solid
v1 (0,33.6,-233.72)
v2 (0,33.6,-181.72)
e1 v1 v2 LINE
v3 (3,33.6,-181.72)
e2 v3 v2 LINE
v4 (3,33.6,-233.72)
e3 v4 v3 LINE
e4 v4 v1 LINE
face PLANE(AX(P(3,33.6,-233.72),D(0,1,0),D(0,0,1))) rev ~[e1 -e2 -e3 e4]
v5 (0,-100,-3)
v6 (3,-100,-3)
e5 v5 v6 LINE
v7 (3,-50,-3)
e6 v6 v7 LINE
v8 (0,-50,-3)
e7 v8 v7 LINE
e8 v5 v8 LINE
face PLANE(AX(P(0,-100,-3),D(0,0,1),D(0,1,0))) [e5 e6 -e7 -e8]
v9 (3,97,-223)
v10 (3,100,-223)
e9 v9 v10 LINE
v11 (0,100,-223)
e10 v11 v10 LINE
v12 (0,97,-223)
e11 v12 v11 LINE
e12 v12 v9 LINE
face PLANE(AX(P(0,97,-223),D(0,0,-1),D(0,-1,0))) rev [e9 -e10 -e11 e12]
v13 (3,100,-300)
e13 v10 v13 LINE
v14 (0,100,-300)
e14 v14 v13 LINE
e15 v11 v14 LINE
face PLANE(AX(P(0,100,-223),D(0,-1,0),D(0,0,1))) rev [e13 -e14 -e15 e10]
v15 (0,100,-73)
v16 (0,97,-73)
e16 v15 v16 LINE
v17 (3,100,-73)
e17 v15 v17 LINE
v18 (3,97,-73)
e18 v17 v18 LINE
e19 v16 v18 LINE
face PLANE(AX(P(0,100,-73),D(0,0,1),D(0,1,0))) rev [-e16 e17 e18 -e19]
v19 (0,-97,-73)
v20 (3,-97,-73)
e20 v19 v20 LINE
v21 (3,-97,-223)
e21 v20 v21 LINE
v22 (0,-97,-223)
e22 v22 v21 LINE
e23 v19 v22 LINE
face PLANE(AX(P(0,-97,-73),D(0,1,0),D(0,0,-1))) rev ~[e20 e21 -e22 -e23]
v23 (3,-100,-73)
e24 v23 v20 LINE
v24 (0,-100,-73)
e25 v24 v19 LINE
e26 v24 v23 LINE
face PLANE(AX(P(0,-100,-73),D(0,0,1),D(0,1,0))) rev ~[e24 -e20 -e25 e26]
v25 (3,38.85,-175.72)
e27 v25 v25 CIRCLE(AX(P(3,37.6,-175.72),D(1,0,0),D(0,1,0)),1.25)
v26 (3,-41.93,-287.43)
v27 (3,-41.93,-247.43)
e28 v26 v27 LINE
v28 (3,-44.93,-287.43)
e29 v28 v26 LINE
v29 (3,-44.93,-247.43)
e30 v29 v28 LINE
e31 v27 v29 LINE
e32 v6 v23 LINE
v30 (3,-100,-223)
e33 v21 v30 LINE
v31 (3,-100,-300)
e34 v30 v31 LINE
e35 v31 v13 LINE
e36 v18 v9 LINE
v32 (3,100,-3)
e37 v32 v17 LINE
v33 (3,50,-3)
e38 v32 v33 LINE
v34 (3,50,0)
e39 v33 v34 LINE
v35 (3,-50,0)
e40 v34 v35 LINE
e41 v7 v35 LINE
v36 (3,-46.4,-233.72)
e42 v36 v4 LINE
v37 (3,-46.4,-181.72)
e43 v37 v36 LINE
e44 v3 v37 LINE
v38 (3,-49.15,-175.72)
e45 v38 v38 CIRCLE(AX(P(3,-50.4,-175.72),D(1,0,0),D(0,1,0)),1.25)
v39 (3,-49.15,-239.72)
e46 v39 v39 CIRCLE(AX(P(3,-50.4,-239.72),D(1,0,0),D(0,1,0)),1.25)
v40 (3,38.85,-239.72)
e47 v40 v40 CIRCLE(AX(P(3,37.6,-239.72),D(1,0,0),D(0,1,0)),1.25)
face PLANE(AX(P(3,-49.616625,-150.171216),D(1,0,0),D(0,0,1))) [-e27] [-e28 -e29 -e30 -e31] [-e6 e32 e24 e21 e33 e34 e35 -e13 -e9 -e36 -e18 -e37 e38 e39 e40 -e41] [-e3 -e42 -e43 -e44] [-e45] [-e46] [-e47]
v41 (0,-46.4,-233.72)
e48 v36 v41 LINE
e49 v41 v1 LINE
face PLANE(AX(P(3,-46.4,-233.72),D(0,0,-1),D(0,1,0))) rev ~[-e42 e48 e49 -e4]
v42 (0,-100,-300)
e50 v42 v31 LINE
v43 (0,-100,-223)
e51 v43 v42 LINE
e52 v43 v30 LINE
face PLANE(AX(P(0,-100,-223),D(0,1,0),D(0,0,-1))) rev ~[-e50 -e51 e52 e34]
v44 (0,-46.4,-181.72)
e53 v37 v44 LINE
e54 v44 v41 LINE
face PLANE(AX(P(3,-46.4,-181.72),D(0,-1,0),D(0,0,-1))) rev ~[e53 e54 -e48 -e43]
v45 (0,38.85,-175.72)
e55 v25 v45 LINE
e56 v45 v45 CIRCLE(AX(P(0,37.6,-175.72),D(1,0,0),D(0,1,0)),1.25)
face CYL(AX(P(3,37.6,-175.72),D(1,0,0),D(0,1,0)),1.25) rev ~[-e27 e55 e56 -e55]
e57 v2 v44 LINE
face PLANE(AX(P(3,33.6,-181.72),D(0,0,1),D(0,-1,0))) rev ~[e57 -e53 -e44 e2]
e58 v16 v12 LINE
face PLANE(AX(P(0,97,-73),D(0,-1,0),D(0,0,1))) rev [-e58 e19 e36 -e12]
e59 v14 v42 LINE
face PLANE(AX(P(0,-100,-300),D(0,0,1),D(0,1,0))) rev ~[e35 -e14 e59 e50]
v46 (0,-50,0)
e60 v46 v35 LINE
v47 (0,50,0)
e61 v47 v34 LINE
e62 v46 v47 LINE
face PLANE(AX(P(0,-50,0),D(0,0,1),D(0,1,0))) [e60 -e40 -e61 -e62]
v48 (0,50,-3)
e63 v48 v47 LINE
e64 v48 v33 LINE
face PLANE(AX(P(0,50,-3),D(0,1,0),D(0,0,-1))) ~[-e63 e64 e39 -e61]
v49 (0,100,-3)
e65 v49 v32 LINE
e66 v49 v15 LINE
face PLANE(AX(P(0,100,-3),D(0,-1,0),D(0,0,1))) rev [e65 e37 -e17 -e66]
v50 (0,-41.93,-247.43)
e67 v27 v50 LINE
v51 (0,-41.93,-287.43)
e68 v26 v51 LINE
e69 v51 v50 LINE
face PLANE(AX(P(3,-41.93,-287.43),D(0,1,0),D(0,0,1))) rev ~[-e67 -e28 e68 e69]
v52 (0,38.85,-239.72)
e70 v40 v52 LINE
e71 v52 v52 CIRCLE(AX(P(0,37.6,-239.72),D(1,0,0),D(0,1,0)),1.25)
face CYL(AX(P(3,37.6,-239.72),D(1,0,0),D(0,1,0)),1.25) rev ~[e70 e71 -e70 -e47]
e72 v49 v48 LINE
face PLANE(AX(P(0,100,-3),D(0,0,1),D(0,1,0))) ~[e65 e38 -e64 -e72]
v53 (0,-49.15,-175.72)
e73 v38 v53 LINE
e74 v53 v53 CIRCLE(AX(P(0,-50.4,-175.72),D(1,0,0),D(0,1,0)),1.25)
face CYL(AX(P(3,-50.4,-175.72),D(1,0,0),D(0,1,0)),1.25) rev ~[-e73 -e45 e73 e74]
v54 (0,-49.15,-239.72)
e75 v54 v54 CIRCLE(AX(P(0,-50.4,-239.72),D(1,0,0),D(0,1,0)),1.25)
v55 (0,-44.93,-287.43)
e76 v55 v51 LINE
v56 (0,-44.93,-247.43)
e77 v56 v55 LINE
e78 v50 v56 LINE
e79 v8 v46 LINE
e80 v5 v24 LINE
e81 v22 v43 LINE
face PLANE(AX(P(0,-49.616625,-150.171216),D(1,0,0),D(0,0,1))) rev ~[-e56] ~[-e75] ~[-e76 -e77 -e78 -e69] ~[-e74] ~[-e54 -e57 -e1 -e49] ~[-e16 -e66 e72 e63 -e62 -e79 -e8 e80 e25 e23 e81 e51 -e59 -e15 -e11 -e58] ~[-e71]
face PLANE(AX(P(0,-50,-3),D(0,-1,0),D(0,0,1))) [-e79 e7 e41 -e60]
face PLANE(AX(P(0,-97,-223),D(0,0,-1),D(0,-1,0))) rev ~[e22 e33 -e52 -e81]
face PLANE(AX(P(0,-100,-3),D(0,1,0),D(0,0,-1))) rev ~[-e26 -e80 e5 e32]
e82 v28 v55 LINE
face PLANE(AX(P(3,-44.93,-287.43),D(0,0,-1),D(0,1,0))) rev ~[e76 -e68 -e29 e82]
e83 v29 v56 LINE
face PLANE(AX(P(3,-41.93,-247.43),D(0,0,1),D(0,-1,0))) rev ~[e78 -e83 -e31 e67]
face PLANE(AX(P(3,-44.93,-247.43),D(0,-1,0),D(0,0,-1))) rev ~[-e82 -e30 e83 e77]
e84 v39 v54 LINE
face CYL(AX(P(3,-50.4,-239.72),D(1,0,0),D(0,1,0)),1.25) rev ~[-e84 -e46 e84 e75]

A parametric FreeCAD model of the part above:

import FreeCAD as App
import Part
import Sketcher
from FreeCAD import Vector
Q = App.Units.Quantity

doc = App.newDocument("Part")
body = doc.addObject("PartDesign::Body", "Body")

# Sketch on YZ plane
sketch1 = body.newObject("Sketcher::SketchObject", "Sketch")
sketch1.AttachmentSupport = (doc.getObject("YZ_Plane"), [""])
sketch1.MapMode = "FlatFace"
sketch1.addGeometry(Part.LineSegment(Vector(-50, -3, 0), Vector(-100, -3, 0)), False)
sketch1.addGeometry(Part.LineSegment(Vector(-100, -3, 0), Vector(-100, -73, 0)), False)
sketch1.addGeometry(Part.LineSegment(Vector(-100, -73, 0), Vector(-97, -73, 0)), False)
sketch1.addGeometry(Part.LineSegment(Vector(-97, -73, 0), Vector(-97, -223, 0)), False)
sketch1.addGeometry(Part.LineSegment(Vector(-97, -223, 0), Vector(-100, -223, 0)), False)
sketch1.addGeometry(Part.LineSegment(Vector(-100, -223, 0), Vector(-100, -300, 0)), False)
sketch1.addGeometry(Part.LineSegment(Vector(-100, -300, 0), Vector(0, -300, 0)), False)
sketch1.addGeometry(Part.LineSegment(Vector(0, -300, 0), Vector(0, 0, 0)), False)
sketch1.addGeometry(Part.LineSegment(Vector(0, 0, 0), Vector(-50, 0, 0)), False)
sketch1.addGeometry(Part.LineSegment(Vector(-50, 0, 0), Vector(-50, -3, 0)), False)
sketch1.addConstraint(Sketcher.Constraint("Coincident", 0, 2, 1, 1))
sketch1.addConstraint(Sketcher.Constraint("Coincident", 1, 2, 2, 1))
sketch1.addConstraint(Sketcher.Constraint("Coincident", 2, 2, 3, 1))
sketch1.addConstraint(Sketcher.Constraint("Coincident", 3, 2, 4, 1))
sketch1.addConstraint(Sketcher.Constraint("Coincident", 4, 2, 5, 1))
sketch1.addConstraint(Sketcher.Constraint("Coincident", 5, 2, 6, 1))
sketch1.addConstraint(Sketcher.Constraint("Coincident", 6, 2, 7, 1))
sketch1.addConstraint(Sketcher.Constraint("Coincident", 7, 2, 8, 1))
sketch1.addConstraint(Sketcher.Constraint("Coincident", 8, 2, 9, 1))
sketch1.addConstraint(Sketcher.Constraint("Coincident", 9, 2, 0, 1))
sketch1.addConstraint(Sketcher.Constraint("Horizontal", 0))
sketch1.addConstraint(Sketcher.Constraint("Vertical", 1))
sketch1.addConstraint(Sketcher.Constraint("Horizontal", 2))
sketch1.addConstraint(Sketcher.Constraint("Vertical", 3))
sketch1.addConstraint(Sketcher.Constraint("Horizontal", 4))
sketch1.addConstraint(Sketcher.Constraint("Vertical", 5))
sketch1.addConstraint(Sketcher.Constraint("Horizontal", 6))
sketch1.addConstraint(Sketcher.Constraint("Vertical", 7))
sketch1.addConstraint(Sketcher.Constraint("Horizontal", 8))
sketch1.addConstraint(Sketcher.Constraint("Vertical", 9))
sketch1.addConstraint(Sketcher.Constraint("Coincident", 7, 2, -1, 1))
sketch1.addConstraint(Sketcher.Constraint("Vertical", 1, 2, 4, 2))
sketch1.addConstraint(Sketcher.Constraint("Equal", 0, 8))
sketch1.addConstraint(Sketcher.Constraint("Equal", 4, 9))
sketch1.addConstraint(Sketcher.Constraint("DistanceX", 0, 2, 0, 1, Q("50 mm")))
sketch1.addConstraint(Sketcher.Constraint("DistanceX", 2, 2, -1, 1, Q("97 mm")))
sketch1.addConstraint(Sketcher.Constraint("DistanceY", 1, 2, 1, 1, Q("70 mm")))
sketch1.addConstraint(Sketcher.Constraint("DistanceY", 3, 2, 3, 1, Q("150 mm")))
sketch1.addConstraint(Sketcher.Constraint("DistanceY", 5, 2, 5, 1, Q("77 mm")))
pad1 = body.newObject("PartDesign::Pad", "Pad")
pad1.Profile = sketch1
pad1.Length = 3
doc.recompute()

mirrored = body.newObject("PartDesign::Mirrored", "Mirrored")
mirrored.Originals = [pad1]
mirrored.MirrorPlane = (doc.getObject("XZ_Plane"), [""])
body.Tip = mirrored

# Sketch on YZ plane
sketch2 = body.newObject("Sketcher::SketchObject", "Sketch001")
sketch2.AttachmentSupport = (doc.getObject("YZ_Plane"), [""])
sketch2.MapMode = "FlatFace"
sketch2.AttachmentOffset = App.Placement(Vector(0, 0, 3), App.Rotation())
sketch2.addGeometry(Part.Circle(Vector(-50.4, -175.7, 0), Vector(0, 0, 1), 1.2), False)
sketch2.addGeometry(Part.Circle(Vector(37.6, -175.7, 0), Vector(0, 0, 1), 1.2), False)
sketch2.addGeometry(Part.Circle(Vector(37.6, -239.7, 0), Vector(0, 0, 1), 1.2), False)
sketch2.addGeometry(Part.Circle(Vector(-50.4, -239.7, 0), Vector(0, 0, 1), 1.2), False)
sketch2.addGeometry(Part.LineSegment(Vector(-44.9, -287.4, 0), Vector(-41.9, -287.4, 0)), False)
sketch2.addGeometry(Part.LineSegment(Vector(-41.9, -287.4, 0), Vector(-41.9, -247.4, 0)), False)
sketch2.addGeometry(Part.LineSegment(Vector(-41.9, -247.4, 0), Vector(-44.9, -247.4, 0)), False)
sketch2.addGeometry(Part.LineSegment(Vector(-44.9, -247.4, 0), Vector(-44.9, -287.4, 0)), False)
sketch2.addGeometry(Part.LineSegment(Vector(33.6, -181.7, 0), Vector(-46.4, -181.7, 0)), False)
sketch2.addGeometry(Part.LineSegment(Vector(-46.4, -181.7, 0), Vector(-46.4, -233.7, 0)), False)
sketch2.addGeometry(Part.LineSegment(Vector(-46.4, -233.7, 0), Vector(33.6, -233.7, 0)), False)
sketch2.addGeometry(Part.LineSegment(Vector(33.6, -233.7, 0), Vector(33.6, -181.7, 0)), False)
sketch2.addConstraint(Sketcher.Constraint("Coincident", 4, 2, 5, 1))
sketch2.addConstraint(Sketcher.Constraint("Coincident", 5, 2, 6, 1))
sketch2.addConstraint(Sketcher.Constraint("Coincident", 6, 2, 7, 1))
sketch2.addConstraint(Sketcher.Constraint("Coincident", 7, 2, 4, 1))
sketch2.addConstraint(Sketcher.Constraint("Coincident", 8, 2, 9, 1))
sketch2.addConstraint(Sketcher.Constraint("Coincident", 9, 2, 10, 1))
sketch2.addConstraint(Sketcher.Constraint("Coincident", 10, 2, 11, 1))
sketch2.addConstraint(Sketcher.Constraint("Coincident", 11, 2, 8, 1))
sketch2.addConstraint(Sketcher.Constraint("Horizontal", 4))
sketch2.addConstraint(Sketcher.Constraint("Vertical", 5))
sketch2.addConstraint(Sketcher.Constraint("Horizontal", 6))
sketch2.addConstraint(Sketcher.Constraint("Vertical", 7))
sketch2.addConstraint(Sketcher.Constraint("Horizontal", 8))
sketch2.addConstraint(Sketcher.Constraint("Vertical", 9))
sketch2.addConstraint(Sketcher.Constraint("Horizontal", 10))
sketch2.addConstraint(Sketcher.Constraint("Vertical", 11))
sketch2.addConstraint(Sketcher.Constraint("Equal", 0, 1))
sketch2.addConstraint(Sketcher.Constraint("Equal", 1, 2))
sketch2.addConstraint(Sketcher.Constraint("Equal", 2, 3))
sketch2.addConstraint(Sketcher.Constraint("Horizontal", 0, 3, 1, 3))
sketch2.addConstraint(Sketcher.Constraint("Horizontal", 2, 3, 3, 3))
sketch2.addConstraint(Sketcher.Constraint("Vertical", 1, 3, 2, 3))
sketch2.addConstraint(Sketcher.Constraint("Vertical", 0, 3, 3, 3))
sketch2.addConstraint(Sketcher.Constraint("Diameter", 0, Q("2.5 mm")))
sketch2.addConstraint(Sketcher.Constraint("DistanceX", 0, 3, -1, 1, Q("50.4 mm")))
sketch2.addConstraint(Sketcher.Constraint("DistanceX", -1, 1, 10, 2, Q("33.6 mm")))
sketch2.addConstraint(Sketcher.Constraint("DistanceX", 4, 1, 4, 2, Q("3 mm")))
sketch2.addConstraint(Sketcher.Constraint("DistanceX", 8, 2, 8, 1, Q("80 mm")))
sketch2.addConstraint(Sketcher.Constraint("DistanceY", 5, 1, 5, 2, Q("40 mm")))
sketch2.addConstraint(Sketcher.Constraint("DistanceY", 9, 2, 9, 1, Q("52 mm")))
sketch2.addConstraint(Sketcher.Constraint("DistanceX", 4, 2, -1, 1, Q("41.93 mm")))
sketch2.addConstraint(Sketcher.Constraint("DistanceX", 0, 3, 1, 3, Q("88 mm")))
sketch2.addConstraint(Sketcher.Constraint("DistanceY", 2, 3, 1, 3, Q("64 mm")))
sketch2.addConstraint(Sketcher.Constraint("DistanceY", 8, 2, 0, 3, Q("6 mm")))
sketch2.addConstraint(Sketcher.Constraint("DistanceY", 0, 3, -1, 1, Q("175.72 mm")))
sketch2.addConstraint(Sketcher.Constraint("DistanceY", 4, 2, -1, 1, Q("287.43 mm")))
pocket1 = body.newObject("PartDesign::Pocket", "Pocket")
pocket1.Profile = sketch2
pocket1.Length = 3

doc.recompute()
